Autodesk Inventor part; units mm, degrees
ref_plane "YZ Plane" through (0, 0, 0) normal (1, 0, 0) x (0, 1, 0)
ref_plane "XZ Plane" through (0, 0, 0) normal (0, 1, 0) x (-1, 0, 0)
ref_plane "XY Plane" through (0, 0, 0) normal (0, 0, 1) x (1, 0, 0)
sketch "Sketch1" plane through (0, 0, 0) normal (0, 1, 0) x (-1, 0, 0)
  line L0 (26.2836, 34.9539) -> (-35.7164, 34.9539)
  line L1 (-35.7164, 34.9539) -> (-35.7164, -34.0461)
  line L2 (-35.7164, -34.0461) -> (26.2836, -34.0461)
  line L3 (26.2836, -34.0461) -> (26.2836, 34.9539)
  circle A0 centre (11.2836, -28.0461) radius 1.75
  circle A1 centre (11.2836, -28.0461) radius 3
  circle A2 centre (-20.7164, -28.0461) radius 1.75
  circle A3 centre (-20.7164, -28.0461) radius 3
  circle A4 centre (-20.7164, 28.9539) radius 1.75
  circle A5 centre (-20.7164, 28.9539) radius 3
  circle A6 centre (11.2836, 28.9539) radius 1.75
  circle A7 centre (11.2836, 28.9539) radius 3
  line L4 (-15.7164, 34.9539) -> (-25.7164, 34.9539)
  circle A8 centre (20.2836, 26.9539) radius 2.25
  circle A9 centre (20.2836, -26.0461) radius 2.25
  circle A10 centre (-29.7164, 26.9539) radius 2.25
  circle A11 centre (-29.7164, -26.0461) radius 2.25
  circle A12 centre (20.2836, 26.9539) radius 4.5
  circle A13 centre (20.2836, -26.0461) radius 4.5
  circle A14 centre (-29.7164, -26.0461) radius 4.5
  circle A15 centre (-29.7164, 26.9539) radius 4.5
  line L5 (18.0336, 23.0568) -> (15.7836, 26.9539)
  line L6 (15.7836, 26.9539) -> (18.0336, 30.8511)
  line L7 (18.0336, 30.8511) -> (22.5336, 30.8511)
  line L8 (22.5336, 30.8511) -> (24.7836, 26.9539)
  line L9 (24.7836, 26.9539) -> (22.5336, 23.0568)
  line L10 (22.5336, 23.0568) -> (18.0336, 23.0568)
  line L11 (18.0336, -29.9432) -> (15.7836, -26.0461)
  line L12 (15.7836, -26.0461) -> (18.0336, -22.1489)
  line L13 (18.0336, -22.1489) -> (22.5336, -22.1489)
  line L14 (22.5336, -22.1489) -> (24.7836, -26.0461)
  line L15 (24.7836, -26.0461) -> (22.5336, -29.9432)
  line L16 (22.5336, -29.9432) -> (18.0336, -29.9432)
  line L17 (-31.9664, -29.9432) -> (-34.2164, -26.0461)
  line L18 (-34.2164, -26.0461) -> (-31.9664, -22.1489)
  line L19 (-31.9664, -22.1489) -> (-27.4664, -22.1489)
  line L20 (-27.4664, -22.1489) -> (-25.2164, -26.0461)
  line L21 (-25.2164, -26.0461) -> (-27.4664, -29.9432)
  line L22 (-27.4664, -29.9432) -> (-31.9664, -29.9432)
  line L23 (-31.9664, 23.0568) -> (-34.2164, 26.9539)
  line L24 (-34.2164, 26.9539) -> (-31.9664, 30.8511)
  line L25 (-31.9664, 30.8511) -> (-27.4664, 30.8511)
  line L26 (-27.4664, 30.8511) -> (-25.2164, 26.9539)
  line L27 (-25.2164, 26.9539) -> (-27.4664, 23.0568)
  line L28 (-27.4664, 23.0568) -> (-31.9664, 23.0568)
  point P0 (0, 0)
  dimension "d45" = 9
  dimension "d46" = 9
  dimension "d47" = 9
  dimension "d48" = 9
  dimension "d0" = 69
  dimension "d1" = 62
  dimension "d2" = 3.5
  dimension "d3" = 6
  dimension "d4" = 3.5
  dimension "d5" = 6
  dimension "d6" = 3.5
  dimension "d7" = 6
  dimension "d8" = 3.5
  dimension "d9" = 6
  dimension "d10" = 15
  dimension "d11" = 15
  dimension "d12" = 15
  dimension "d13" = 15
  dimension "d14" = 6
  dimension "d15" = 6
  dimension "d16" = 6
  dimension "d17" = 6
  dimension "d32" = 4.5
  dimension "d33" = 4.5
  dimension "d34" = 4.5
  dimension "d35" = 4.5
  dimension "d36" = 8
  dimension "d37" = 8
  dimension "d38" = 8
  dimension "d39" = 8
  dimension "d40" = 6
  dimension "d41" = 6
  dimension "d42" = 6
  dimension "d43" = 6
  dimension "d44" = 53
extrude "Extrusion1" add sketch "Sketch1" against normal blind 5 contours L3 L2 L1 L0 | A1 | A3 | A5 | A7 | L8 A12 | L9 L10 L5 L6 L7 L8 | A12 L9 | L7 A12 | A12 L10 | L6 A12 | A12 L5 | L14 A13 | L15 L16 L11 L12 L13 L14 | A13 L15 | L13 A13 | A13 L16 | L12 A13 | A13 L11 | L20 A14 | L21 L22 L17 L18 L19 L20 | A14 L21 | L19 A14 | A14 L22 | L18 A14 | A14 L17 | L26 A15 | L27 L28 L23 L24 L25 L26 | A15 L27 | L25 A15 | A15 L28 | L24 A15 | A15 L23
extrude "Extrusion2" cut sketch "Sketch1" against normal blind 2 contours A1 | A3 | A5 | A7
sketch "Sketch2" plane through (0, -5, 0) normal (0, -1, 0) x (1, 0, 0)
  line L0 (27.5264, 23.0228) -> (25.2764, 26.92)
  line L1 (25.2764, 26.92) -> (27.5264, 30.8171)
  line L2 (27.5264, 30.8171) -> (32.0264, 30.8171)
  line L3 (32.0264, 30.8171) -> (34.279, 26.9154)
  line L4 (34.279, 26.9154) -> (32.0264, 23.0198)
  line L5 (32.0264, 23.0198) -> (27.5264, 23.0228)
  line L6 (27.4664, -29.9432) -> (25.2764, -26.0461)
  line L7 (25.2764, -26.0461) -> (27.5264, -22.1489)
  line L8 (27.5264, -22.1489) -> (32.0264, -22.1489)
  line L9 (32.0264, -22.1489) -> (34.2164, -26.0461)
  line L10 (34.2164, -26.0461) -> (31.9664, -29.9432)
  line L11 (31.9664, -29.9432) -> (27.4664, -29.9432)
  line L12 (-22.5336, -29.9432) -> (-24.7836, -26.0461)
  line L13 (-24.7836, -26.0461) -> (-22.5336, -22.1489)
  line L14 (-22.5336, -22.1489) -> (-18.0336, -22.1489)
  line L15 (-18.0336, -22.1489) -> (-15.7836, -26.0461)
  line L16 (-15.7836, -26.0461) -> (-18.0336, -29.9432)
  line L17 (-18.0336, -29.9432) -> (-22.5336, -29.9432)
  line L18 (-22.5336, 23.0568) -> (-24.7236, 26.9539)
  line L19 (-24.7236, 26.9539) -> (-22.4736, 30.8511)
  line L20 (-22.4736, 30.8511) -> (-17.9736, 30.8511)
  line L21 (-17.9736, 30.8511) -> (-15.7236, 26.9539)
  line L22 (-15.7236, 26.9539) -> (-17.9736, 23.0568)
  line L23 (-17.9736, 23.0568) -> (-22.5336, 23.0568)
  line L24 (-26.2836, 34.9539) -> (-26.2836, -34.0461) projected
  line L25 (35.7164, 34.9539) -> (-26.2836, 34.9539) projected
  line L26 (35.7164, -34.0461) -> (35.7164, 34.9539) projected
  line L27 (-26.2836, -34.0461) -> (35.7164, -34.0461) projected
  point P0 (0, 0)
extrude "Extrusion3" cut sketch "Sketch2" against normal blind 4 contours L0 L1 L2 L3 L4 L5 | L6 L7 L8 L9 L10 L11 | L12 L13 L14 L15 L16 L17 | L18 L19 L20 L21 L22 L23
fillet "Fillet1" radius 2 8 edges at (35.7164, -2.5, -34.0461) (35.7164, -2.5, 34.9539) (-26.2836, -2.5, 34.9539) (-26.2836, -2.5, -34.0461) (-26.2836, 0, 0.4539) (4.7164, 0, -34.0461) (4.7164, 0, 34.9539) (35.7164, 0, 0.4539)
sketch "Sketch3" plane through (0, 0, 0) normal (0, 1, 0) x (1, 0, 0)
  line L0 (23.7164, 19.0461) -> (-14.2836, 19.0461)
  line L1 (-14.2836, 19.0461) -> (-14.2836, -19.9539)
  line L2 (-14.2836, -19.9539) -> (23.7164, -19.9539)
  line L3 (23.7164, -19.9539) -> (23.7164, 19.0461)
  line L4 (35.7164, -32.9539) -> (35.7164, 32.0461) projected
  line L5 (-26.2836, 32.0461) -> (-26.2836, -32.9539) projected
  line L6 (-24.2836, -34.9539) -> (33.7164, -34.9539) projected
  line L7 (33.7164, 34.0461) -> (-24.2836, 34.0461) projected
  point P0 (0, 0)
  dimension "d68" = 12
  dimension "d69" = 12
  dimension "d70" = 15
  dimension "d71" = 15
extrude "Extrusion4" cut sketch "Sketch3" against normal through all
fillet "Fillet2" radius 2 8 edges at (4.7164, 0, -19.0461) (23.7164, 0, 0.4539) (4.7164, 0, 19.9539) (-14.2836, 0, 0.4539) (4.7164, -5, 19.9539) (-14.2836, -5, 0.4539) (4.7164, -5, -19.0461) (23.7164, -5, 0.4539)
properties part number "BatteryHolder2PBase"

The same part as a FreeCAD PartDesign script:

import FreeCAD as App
import Part
import Sketcher
Q = App.Units.Quantity


def edges_at(feature, points):
    """Names of the edges that pass closest to the given points."""
    edges = feature.Shape.Edges
    near = lambda p: min(range(len(edges)), key=lambda i: edges[i].distToShape(Part.Vertex(*p))[0])
    return sorted({f"Edge{near(p) + 1}" for p in points})

doc = App.newDocument("Part")
params = doc.addObject("Spreadsheet::Sheet", "Params")
for row, (alias, value) in enumerate([
    ("sketch1_diameter", "3.5 mm"),
    ("sketch1_diameter2", "4.5 mm"),
    ("sketch1_width", "62 mm"),
    ("sketch1_height", "69 mm"),
    ("pad1_length", "5 mm"),
    ("sketch2_diameter", "6 mm"),
    ("sketch2_diameter2", "3.5 mm"),
    ("pocket1_length", "2 mm"),
    ("sketch3_width", "4.5 mm"),
    ("sketch3_width2", "4.56 mm"),
    ("pocket2_length", "4 mm"),
    ("fillet_radius", "2 mm"),
    ("sketch4_width", "38 mm"),
    ("sketch4_height", "39 mm"),
    ("fillet2_radius", "2 mm"),
], start=1):
    params.set(f"A{row}", alias)
    params.set(f"B{row}", "=" + value)
    params.setAlias(f"B{row}", alias)

body = doc.addObject("PartDesign::Body", "Body")

# Sketch on XZ plane
sketch1 = doc.addObject("Sketcher::SketchObject", "Sketch")
body.addObject(sketch1)
sketch1.AttachmentSupport = (doc.XZ_Plane, [""])
sketch1.MapMode = "FlatFace"
sketch1.addGeometry([
    Part.LineSegment(App.Vector(-26.3, -34, 0), App.Vector(-26.3, 35, 0)),  # 0
    Part.LineSegment(App.Vector(-26.3, 35, 0), App.Vector(35.7, 35, 0)),  # 1
    Part.LineSegment(App.Vector(35.7, 35, 0), App.Vector(35.7, -34, 0)),  # 2
    Part.LineSegment(App.Vector(35.7, -34, 0), App.Vector(-26.3, -34, 0)),  # 3
    Part.Circle(App.Vector(20.7, -28, 0), App.Vector(0, 0, 1), 1.8),  # 4
    Part.Circle(App.Vector(-11.3, -28, 0), App.Vector(0, 0, 1), 1.8),  # 5
    Part.Circle(App.Vector(20.7, 29, 0), App.Vector(0, 0, 1), 1.8),  # 6
    Part.Circle(App.Vector(-11.3, 29, 0), App.Vector(0, 0, 1), 1.8),  # 7
    Part.Circle(App.Vector(29.7, -26, 0), App.Vector(0, 0, 1), 2.2),  # 8
    Part.Circle(App.Vector(-20.3, -26, 0), App.Vector(0, 0, 1), 2.2),  # 9
    Part.Circle(App.Vector(29.7, 27, 0), App.Vector(0, 0, 1), 2.2),  # 10
    Part.Circle(App.Vector(-20.3, 27, 0), App.Vector(0, 0, 1), 2.2),  # 11
], False)
sketch1.addConstraint([
    Sketcher.Constraint("Coincident", 0, 2, 1, 1),
    Sketcher.Constraint("Coincident", 1, 2, 2, 1),
    Sketcher.Constraint("Coincident", 2, 2, 3, 1),
    Sketcher.Constraint("Coincident", 3, 2, 0, 1),
    Sketcher.Constraint("Vertical", 0),
    Sketcher.Constraint("Horizontal", 1),
    Sketcher.Constraint("Vertical", 2),
    Sketcher.Constraint("Horizontal", 3),
    Sketcher.Constraint("Equal", 4, 5),
    Sketcher.Constraint("Equal", 5, 6),
    Sketcher.Constraint("Equal", 6, 7),
    Sketcher.Constraint("Equal", 8, 9),
    Sketcher.Constraint("Equal", 9, 10),
    Sketcher.Constraint("Equal", 10, 11),
    Sketcher.Constraint("Horizontal", 4, 3, 5, 3),
    Sketcher.Constraint("Horizontal", 6, 3, 7, 3),
    Sketcher.Constraint("Horizontal", 8, 3, 9, 3),
    Sketcher.Constraint("Horizontal", 10, 3, 11, 3),
    Sketcher.Constraint("Vertical", 4, 3, 6, 3),
    Sketcher.Constraint("Vertical", 5, 3, 7, 3),
    Sketcher.Constraint("Vertical", 8, 3, 10, 3),
    Sketcher.Constraint("Vertical", 9, 3, 11, 3),
    Sketcher.Constraint("Diameter", 4, 3.5),
    Sketcher.Constraint("Diameter", 8, 4.5),
    Sketcher.Constraint("DistanceX", 1, 1, 1, 2, 62.0),
    Sketcher.Constraint("DistanceY", 0, 1, 0, 2, 69.0),
    Sketcher.Constraint("DistanceX", 4, 3, 8, 3, 9.0),
    Sketcher.Constraint("DistanceX", 9, 3, 5, 3, 9.0),
    Sketcher.Constraint("DistanceY", 8, 3, 10, 3, 53.0),
    Sketcher.Constraint("DistanceX", 0, 2, 11, 3, 6.0),
    Sketcher.Constraint("DistanceY", 11, 3, 0, 2, 8.0),
    Sketcher.Constraint("DistanceY", 7, 3, 0, 2, 6.0),
    Sketcher.Constraint("DistanceX", 10, 3, 1, 2, 6.0),
    Sketcher.Constraint("DistanceY", 2, 2, 4, 3, 6.0),
    Sketcher.Constraint("DistanceY", 4, 3, -1, 1, 28.046),
    Sketcher.Constraint("DistanceX", -1, 1, 4, 3, 20.7164),
])
sketch1.setExpression("Constraints[22]", "Params.sketch1_diameter")
sketch1.setExpression("Constraints[23]", "Params.sketch1_diameter2")
sketch1.setExpression("Constraints[24]", "Params.sketch1_width")
sketch1.setExpression("Constraints[25]", "Params.sketch1_height")
pad1 = doc.addObject("PartDesign::Pad", "Pad")
body.addObject(pad1)
pad1.Profile = sketch1
pad1.setExpression("Length", "Params.pad1_length")

# Sketch on XZ plane
sketch2 = doc.addObject("Sketcher::SketchObject", "Sketch001")
body.addObject(sketch2)
sketch2.AttachmentSupport = (doc.XZ_Plane, [""])
sketch2.MapMode = "FlatFace"
sketch2.addGeometry([
    Part.Circle(App.Vector(-11.3, -28, 0), App.Vector(0, 0, 1), 3),  # 0
    Part.Circle(App.Vector(-11.3, -28, 0), App.Vector(0, 0, 1), 1.8),  # 1
    Part.Circle(App.Vector(20.7, -28, 0), App.Vector(0, 0, 1), 3),  # 2
    Part.Circle(App.Vector(20.7, -28, 0), App.Vector(0, 0, 1), 1.8),  # 3
    Part.Circle(App.Vector(20.7, 29, 0), App.Vector(0, 0, 1), 3),  # 4
    Part.Circle(App.Vector(20.7, 29, 0), App.Vector(0, 0, 1), 1.8),  # 5
    Part.Circle(App.Vector(-11.3, 29, 0), App.Vector(0, 0, 1), 3),  # 6
    Part.Circle(App.Vector(-11.3, 29, 0), App.Vector(0, 0, 1), 1.8),  # 7
], False)
sketch2.addConstraint([
    Sketcher.Constraint("Coincident", 1, 3, 0, 3),
    Sketcher.Constraint("Coincident", 3, 3, 2, 3),
    Sketcher.Constraint("Coincident", 5, 3, 4, 3),
    Sketcher.Constraint("Coincident", 7, 3, 6, 3),
    Sketcher.Constraint("Equal", 0, 2),
    Sketcher.Constraint("Equal", 1, 3),
    Sketcher.Constraint("Equal", 2, 4),
    Sketcher.Constraint("Equal", 3, 5),
    Sketcher.Constraint("Equal", 4, 6),
    Sketcher.Constraint("Equal", 5, 7),
    Sketcher.Constraint("Horizontal", 1, 3, 2, 3),
    Sketcher.Constraint("Horizontal", 5, 3, 6, 3),
    Sketcher.Constraint("Vertical", 3, 3, 4, 3),
    Sketcher.Constraint("Vertical", 1, 3, 6, 3),
    Sketcher.Constraint("Diameter", 0, 6.0),
    Sketcher.Constraint("Diameter", 1, 3.5),
    Sketcher.Constraint("DistanceX", 0, 3, 2, 3, 32.0),
    Sketcher.Constraint("DistanceY", 2, 3, 4, 3, 57.0),
    Sketcher.Constraint("DistanceY", 0, 3, -1, 1, 28.046),
    Sketcher.Constraint("DistanceX", 0, 3, -1, 1, 11.2836),
])
sketch2.setExpression("Constraints[14]", "Params.sketch2_diameter")
sketch2.setExpression("Constraints[15]", "Params.sketch2_diameter2")
pocket1 = doc.addObject("PartDesign::Pocket", "Pocket")
body.addObject(pocket1)
pocket1.Profile = sketch2
pocket1.setExpression("Length", "Params.pocket1_length")
pocket1.Reversed = True

# Sketch on XZ plane
sketch3 = doc.addObject("Sketcher::SketchObject", "Sketch002")
body.addObject(sketch3)
sketch3.AttachmentSupport = (doc.XZ_Plane, [""])
sketch3.MapMode = "FlatFace"
sketch3.AttachmentOffset = App.Placement(App.Vector(0, 0, 5), App.Rotation())
sketch3.addGeometry([
    Part.LineSegment(App.Vector(25.3, 26.9, 0), App.Vector(27.5, 23, 0)),  # 0
    Part.LineSegment(App.Vector(27.5, 23, 0), App.Vector(32, 23, 0)),  # 1
    Part.LineSegment(App.Vector(32, 23, 0), App.Vector(34.3, 26.9, 0)),  # 2
    Part.LineSegment(App.Vector(34.3, 26.9, 0), App.Vector(32, 30.8, 0)),  # 3
    Part.LineSegment(App.Vector(32, 30.8, 0), App.Vector(27.5, 30.8, 0)),  # 4
    Part.LineSegment(App.Vector(27.5, 30.8, 0), App.Vector(25.3, 26.9, 0)),  # 5
    Part.LineSegment(App.Vector(25.3, -26, 0), App.Vector(27.5, -29.9, 0)),  # 6
    Part.LineSegment(App.Vector(27.5, -29.9, 0), App.Vector(32, -29.9, 0)),  # 7
    Part.LineSegment(App.Vector(32, -29.9, 0), App.Vector(34.2, -26, 0)),  # 8
    Part.LineSegment(App.Vector(34.2, -26, 0), App.Vector(32, -22.1, 0)),  # 9
    Part.LineSegment(App.Vector(32, -22.1, 0), App.Vector(27.5, -22.1, 0)),  # 10
    Part.LineSegment(App.Vector(27.5, -22.1, 0), App.Vector(25.3, -26, 0)),  # 11
    Part.LineSegment(App.Vector(-24.8, -26, 0), App.Vector(-22.5, -29.9, 0)),  # 12
    Part.LineSegment(App.Vector(-22.5, -29.9, 0), App.Vector(-18, -29.9, 0)),  # 13
    Part.LineSegment(App.Vector(-18, -29.9, 0), App.Vector(-15.8, -26, 0)),  # 14
    Part.LineSegment(App.Vector(-15.8, -26, 0), App.Vector(-18, -22.1, 0)),  # 15
    Part.LineSegment(App.Vector(-18, -22.1, 0), App.Vector(-22.5, -22.1, 0)),  # 16
    Part.LineSegment(App.Vector(-22.5, -22.1, 0), App.Vector(-24.8, -26, 0)),  # 17
    Part.LineSegment(App.Vector(-24.7, 27, 0), App.Vector(-22.5, 23.1, 0)),  # 18
    Part.LineSegment(App.Vector(-22.5, 23.1, 0), App.Vector(-18, 23.1, 0)),  # 19
    Part.LineSegment(App.Vector(-18, 23.1, 0), App.Vector(-15.7, 27, 0)),  # 20
    Part.LineSegment(App.Vector(-15.7, 27, 0), App.Vector(-18, 30.9, 0)),  # 21
    Part.LineSegment(App.Vector(-18, 30.9, 0), App.Vector(-22.5, 30.9, 0)),  # 22
    Part.LineSegment(App.Vector(-22.5, 30.9, 0), App.Vector(-24.7, 27, 0)),  # 23
], False)
sketch3.addConstraint([
    Sketcher.Constraint("Coincident", 0, 2, 1, 1),
    Sketcher.Constraint("Coincident", 1, 2, 2, 1),
    Sketcher.Constraint("Coincident", 2, 2, 3, 1),
    Sketcher.Constraint("Coincident", 3, 2, 4, 1),
    Sketcher.Constraint("Coincident", 4, 2, 5, 1),
    Sketcher.Constraint("Coincident", 5, 2, 0, 1),
    Sketcher.Constraint("Coincident", 6, 2, 7, 1),
    Sketcher.Constraint("Coincident", 7, 2, 8, 1),
    Sketcher.Constraint("Coincident", 8, 2, 9, 1),
    Sketcher.Constraint("Coincident", 9, 2, 10, 1),
    Sketcher.Constraint("Coincident", 10, 2, 11, 1),
    Sketcher.Constraint("Coincident", 11, 2, 6, 1),
    Sketcher.Constraint("Coincident", 12, 2, 13, 1),
    Sketcher.Constraint("Coincident", 13, 2, 14, 1),
    Sketcher.Constraint("Coincident", 14, 2, 15, 1),
    Sketcher.Constraint("Coincident", 15, 2, 16, 1),
    Sketcher.Constraint("Coincident", 16, 2, 17, 1),
    Sketcher.Constraint("Coincident", 17, 2, 12, 1),
    Sketcher.Constraint("Coincident", 18, 2, 19, 1),
    Sketcher.Constraint("Coincident", 19, 2, 20, 1),
    Sketcher.Constraint("Coincident", 20, 2, 21, 1),
    Sketcher.Constraint("Coincident", 21, 2, 22, 1),
    Sketcher.Constraint("Coincident", 22, 2, 23, 1),
    Sketcher.Constraint("Coincident", 23, 2, 18, 1),
    Sketcher.Constraint("Horizontal", 4),
    Sketcher.Constraint("Horizontal", 7),
    Sketcher.Constraint("Horizontal", 10),
    Sketcher.Constraint("Horizontal", 13),
    Sketcher.Constraint("Horizontal", 16),
    Sketcher.Constraint("Horizontal", 19),
    Sketcher.Constraint("Horizontal", 22),
    Sketcher.Constraint("Parallel", 0, 3),
    Sketcher.Constraint("Parallel", 5, 8),
    Sketcher.Constraint("Parallel", 6, 9),
    Sketcher.Constraint("Parallel", 8, 11),
    Sketcher.Constraint("Parallel", 3, 12),
    Sketcher.Constraint("Parallel", 11, 14),
    Sketcher.Constraint("Parallel", 12, 15),
    Sketcher.Constraint("Parallel", 14, 17),
    Sketcher.Constraint("Parallel", 9, 18),
    Sketcher.Constraint("Parallel", 17, 20),
    Sketcher.Constraint("Parallel", 15, 21),
    Sketcher.Constraint("Parallel", 20, 23),
    Sketcher.Constraint("Horizontal", 8, 2, 11, 2),
    Sketcher.Constraint("Horizontal", 7, 2, 12, 2),
    Sketcher.Constraint("Horizontal", 11, 2, 14, 2),
    Sketcher.Constraint("Horizontal", 10, 2, 15, 2),
    Sketcher.Constraint("Horizontal", 14, 2, 17, 2),
    Sketcher.Constraint("Horizontal", 20, 2, 23, 2),
    Sketcher.Constraint("Vertical", 1, 2, 3, 2),
    Sketcher.Constraint("Vertical", 0, 2, 4, 2),
    Sketcher.Constraint("Vertical", 3, 2, 9, 2),
    Sketcher.Constraint("Vertical", 4, 2, 10, 2),
    Sketcher.Constraint("Vertical", 5, 2, 11, 2),
    Sketcher.Constraint("Vertical", 13, 2, 15, 2),
    Sketcher.Constraint("Vertical", 12, 2, 16, 2),
    Sketcher.Constraint("Vertical", 16, 2, 18, 2),
    Sketcher.Constraint("Vertical", 19, 2, 21, 2),
    Sketcher.Constraint("Equal", 10, 13),
    Sketcher.Constraint("Equal", 16, 22),
    Sketcher.Constraint("Equal", 0, 1),
    Sketcher.Constraint("Equal", 1, 2),
    Sketcher.Constraint("Equal", 9, 18),
    Sketcher.Constraint("Angle", 0, Q("-60.0005 deg")),
    Sketcher.Constraint("DistanceX", 4, 2, 4, 1, 4.5),
    Sketcher.Constraint("DistanceX", 12, 2, 6, 2, 50.0),
    Sketcher.Constraint("DistanceX", 19, 1, 19, 2, 4.56),
    Sketcher.Constraint("DistanceY", -1, 1, 5, 2, 26.92),
    Sketcher.Constraint("DistanceX", -1, 1, 2, 2, 34.279),
    Sketcher.Constraint("DistanceY", 8, 2, -1, 1, 26.046),
    Sketcher.Constraint("DistanceY", -1, 1, 20, 2, 26.954),
    Sketcher.Constraint("DistanceY", 1, 2, 0, 2, 0.003),
])
sketch3.setExpression("Constraints[64]", "Params.sketch3_width")
sketch3.setExpression("Constraints[66]", "Params.sketch3_width2")
pocket2 = doc.addObject("PartDesign::Pocket", "Pocket001")
body.addObject(pocket2)
pocket2.Profile = sketch3
pocket2.setExpression("Length", "Params.pocket2_length")
doc.recompute()

fillet = doc.addObject("PartDesign::Fillet", "Fillet")
body.addObject(fillet)
fillet.Base = (pocket2, edges_at(pocket2, [
    (35.716, -2.5, -34.046),
    (35.716, -2.5, 34.954),
    (-26.284, -2.5, 34.954),
    (-26.284, -2.5, -34.046),
    (-26.284, 0, 0.454),
    (4.716, 0, -34.046),
    (4.716, 0, 34.954),
    (35.716, 0, 0.454),
]))
fillet.setExpression("Radius", "Params.fillet_radius")

# Sketch on XZ plane
sketch4 = doc.addObject("Sketcher::SketchObject", "Sketch003")
body.addObject(sketch4)
sketch4.AttachmentSupport = (doc.XZ_Plane, [""])
sketch4.MapMode = "FlatFace"
sketch4.addGeometry([
    Part.LineSegment(App.Vector(24, 20, 0), App.Vector(24, -19, 0)),
    Part.LineSegment(App.Vector(24, -19, 0), App.Vector(-14, -19, 0)),
    Part.LineSegment(App.Vector(-14, -19, 0), App.Vector(-14, 20, 0)),
    Part.LineSegment(App.Vector(-14, 20, 0), App.Vector(24, 20, 0)),
], False)
sketch4.addConstraint([
    Sketcher.Constraint("Coincident", 0, 2, 1, 1),
    Sketcher.Constraint("Coincident", 1, 2, 2, 1),
    Sketcher.Constraint("Coincident", 2, 2, 3, 1),
    Sketcher.Constraint("Coincident", 3, 2, 0, 1),
    Sketcher.Constraint("Vertical", 0),
    Sketcher.Constraint("Horizontal", 1),
    Sketcher.Constraint("Vertical", 2),
    Sketcher.Constraint("Horizontal", 3),
    Sketcher.Constraint("DistanceX", 1, 2, 1, 1, 38.0),
    Sketcher.Constraint("DistanceY", 0, 2, 0, 1, 39.0),
    Sketcher.Constraint("DistanceY", 0, 2, -1, 1, 19.046),
    Sketcher.Constraint("DistanceX", -1, 1, 0, 2, 23.7164),
])
sketch4.setExpression("Constraints[8]", "Params.sketch4_width")
sketch4.setExpression("Constraints[9]", "Params.sketch4_height")
pocket3 = doc.addObject("PartDesign::Pocket", "Pocket002")
body.addObject(pocket3)
pocket3.Profile = sketch4
pocket3.Type = "ThroughAll"
pocket3.Reversed = True
doc.recompute()

fillet2 = doc.addObject("PartDesign::Fillet", "Fillet001")
body.addObject(fillet2)
fillet2.Base = (pocket3, edges_at(pocket3, [
    (4.716, 0, -19.046),
    (23.716, 0, 0.454),
    (4.716, 0, 19.954),
    (-14.284, 0, 0.454),
    (4.716, -5, 19.954),
    (-14.284, -5, 0.454),
    (4.716, -5, -19.046),
    (23.716, -5, 0.454),
]))
fillet2.setExpression("Radius", "Params.fillet2_radius")

doc.recompute()
